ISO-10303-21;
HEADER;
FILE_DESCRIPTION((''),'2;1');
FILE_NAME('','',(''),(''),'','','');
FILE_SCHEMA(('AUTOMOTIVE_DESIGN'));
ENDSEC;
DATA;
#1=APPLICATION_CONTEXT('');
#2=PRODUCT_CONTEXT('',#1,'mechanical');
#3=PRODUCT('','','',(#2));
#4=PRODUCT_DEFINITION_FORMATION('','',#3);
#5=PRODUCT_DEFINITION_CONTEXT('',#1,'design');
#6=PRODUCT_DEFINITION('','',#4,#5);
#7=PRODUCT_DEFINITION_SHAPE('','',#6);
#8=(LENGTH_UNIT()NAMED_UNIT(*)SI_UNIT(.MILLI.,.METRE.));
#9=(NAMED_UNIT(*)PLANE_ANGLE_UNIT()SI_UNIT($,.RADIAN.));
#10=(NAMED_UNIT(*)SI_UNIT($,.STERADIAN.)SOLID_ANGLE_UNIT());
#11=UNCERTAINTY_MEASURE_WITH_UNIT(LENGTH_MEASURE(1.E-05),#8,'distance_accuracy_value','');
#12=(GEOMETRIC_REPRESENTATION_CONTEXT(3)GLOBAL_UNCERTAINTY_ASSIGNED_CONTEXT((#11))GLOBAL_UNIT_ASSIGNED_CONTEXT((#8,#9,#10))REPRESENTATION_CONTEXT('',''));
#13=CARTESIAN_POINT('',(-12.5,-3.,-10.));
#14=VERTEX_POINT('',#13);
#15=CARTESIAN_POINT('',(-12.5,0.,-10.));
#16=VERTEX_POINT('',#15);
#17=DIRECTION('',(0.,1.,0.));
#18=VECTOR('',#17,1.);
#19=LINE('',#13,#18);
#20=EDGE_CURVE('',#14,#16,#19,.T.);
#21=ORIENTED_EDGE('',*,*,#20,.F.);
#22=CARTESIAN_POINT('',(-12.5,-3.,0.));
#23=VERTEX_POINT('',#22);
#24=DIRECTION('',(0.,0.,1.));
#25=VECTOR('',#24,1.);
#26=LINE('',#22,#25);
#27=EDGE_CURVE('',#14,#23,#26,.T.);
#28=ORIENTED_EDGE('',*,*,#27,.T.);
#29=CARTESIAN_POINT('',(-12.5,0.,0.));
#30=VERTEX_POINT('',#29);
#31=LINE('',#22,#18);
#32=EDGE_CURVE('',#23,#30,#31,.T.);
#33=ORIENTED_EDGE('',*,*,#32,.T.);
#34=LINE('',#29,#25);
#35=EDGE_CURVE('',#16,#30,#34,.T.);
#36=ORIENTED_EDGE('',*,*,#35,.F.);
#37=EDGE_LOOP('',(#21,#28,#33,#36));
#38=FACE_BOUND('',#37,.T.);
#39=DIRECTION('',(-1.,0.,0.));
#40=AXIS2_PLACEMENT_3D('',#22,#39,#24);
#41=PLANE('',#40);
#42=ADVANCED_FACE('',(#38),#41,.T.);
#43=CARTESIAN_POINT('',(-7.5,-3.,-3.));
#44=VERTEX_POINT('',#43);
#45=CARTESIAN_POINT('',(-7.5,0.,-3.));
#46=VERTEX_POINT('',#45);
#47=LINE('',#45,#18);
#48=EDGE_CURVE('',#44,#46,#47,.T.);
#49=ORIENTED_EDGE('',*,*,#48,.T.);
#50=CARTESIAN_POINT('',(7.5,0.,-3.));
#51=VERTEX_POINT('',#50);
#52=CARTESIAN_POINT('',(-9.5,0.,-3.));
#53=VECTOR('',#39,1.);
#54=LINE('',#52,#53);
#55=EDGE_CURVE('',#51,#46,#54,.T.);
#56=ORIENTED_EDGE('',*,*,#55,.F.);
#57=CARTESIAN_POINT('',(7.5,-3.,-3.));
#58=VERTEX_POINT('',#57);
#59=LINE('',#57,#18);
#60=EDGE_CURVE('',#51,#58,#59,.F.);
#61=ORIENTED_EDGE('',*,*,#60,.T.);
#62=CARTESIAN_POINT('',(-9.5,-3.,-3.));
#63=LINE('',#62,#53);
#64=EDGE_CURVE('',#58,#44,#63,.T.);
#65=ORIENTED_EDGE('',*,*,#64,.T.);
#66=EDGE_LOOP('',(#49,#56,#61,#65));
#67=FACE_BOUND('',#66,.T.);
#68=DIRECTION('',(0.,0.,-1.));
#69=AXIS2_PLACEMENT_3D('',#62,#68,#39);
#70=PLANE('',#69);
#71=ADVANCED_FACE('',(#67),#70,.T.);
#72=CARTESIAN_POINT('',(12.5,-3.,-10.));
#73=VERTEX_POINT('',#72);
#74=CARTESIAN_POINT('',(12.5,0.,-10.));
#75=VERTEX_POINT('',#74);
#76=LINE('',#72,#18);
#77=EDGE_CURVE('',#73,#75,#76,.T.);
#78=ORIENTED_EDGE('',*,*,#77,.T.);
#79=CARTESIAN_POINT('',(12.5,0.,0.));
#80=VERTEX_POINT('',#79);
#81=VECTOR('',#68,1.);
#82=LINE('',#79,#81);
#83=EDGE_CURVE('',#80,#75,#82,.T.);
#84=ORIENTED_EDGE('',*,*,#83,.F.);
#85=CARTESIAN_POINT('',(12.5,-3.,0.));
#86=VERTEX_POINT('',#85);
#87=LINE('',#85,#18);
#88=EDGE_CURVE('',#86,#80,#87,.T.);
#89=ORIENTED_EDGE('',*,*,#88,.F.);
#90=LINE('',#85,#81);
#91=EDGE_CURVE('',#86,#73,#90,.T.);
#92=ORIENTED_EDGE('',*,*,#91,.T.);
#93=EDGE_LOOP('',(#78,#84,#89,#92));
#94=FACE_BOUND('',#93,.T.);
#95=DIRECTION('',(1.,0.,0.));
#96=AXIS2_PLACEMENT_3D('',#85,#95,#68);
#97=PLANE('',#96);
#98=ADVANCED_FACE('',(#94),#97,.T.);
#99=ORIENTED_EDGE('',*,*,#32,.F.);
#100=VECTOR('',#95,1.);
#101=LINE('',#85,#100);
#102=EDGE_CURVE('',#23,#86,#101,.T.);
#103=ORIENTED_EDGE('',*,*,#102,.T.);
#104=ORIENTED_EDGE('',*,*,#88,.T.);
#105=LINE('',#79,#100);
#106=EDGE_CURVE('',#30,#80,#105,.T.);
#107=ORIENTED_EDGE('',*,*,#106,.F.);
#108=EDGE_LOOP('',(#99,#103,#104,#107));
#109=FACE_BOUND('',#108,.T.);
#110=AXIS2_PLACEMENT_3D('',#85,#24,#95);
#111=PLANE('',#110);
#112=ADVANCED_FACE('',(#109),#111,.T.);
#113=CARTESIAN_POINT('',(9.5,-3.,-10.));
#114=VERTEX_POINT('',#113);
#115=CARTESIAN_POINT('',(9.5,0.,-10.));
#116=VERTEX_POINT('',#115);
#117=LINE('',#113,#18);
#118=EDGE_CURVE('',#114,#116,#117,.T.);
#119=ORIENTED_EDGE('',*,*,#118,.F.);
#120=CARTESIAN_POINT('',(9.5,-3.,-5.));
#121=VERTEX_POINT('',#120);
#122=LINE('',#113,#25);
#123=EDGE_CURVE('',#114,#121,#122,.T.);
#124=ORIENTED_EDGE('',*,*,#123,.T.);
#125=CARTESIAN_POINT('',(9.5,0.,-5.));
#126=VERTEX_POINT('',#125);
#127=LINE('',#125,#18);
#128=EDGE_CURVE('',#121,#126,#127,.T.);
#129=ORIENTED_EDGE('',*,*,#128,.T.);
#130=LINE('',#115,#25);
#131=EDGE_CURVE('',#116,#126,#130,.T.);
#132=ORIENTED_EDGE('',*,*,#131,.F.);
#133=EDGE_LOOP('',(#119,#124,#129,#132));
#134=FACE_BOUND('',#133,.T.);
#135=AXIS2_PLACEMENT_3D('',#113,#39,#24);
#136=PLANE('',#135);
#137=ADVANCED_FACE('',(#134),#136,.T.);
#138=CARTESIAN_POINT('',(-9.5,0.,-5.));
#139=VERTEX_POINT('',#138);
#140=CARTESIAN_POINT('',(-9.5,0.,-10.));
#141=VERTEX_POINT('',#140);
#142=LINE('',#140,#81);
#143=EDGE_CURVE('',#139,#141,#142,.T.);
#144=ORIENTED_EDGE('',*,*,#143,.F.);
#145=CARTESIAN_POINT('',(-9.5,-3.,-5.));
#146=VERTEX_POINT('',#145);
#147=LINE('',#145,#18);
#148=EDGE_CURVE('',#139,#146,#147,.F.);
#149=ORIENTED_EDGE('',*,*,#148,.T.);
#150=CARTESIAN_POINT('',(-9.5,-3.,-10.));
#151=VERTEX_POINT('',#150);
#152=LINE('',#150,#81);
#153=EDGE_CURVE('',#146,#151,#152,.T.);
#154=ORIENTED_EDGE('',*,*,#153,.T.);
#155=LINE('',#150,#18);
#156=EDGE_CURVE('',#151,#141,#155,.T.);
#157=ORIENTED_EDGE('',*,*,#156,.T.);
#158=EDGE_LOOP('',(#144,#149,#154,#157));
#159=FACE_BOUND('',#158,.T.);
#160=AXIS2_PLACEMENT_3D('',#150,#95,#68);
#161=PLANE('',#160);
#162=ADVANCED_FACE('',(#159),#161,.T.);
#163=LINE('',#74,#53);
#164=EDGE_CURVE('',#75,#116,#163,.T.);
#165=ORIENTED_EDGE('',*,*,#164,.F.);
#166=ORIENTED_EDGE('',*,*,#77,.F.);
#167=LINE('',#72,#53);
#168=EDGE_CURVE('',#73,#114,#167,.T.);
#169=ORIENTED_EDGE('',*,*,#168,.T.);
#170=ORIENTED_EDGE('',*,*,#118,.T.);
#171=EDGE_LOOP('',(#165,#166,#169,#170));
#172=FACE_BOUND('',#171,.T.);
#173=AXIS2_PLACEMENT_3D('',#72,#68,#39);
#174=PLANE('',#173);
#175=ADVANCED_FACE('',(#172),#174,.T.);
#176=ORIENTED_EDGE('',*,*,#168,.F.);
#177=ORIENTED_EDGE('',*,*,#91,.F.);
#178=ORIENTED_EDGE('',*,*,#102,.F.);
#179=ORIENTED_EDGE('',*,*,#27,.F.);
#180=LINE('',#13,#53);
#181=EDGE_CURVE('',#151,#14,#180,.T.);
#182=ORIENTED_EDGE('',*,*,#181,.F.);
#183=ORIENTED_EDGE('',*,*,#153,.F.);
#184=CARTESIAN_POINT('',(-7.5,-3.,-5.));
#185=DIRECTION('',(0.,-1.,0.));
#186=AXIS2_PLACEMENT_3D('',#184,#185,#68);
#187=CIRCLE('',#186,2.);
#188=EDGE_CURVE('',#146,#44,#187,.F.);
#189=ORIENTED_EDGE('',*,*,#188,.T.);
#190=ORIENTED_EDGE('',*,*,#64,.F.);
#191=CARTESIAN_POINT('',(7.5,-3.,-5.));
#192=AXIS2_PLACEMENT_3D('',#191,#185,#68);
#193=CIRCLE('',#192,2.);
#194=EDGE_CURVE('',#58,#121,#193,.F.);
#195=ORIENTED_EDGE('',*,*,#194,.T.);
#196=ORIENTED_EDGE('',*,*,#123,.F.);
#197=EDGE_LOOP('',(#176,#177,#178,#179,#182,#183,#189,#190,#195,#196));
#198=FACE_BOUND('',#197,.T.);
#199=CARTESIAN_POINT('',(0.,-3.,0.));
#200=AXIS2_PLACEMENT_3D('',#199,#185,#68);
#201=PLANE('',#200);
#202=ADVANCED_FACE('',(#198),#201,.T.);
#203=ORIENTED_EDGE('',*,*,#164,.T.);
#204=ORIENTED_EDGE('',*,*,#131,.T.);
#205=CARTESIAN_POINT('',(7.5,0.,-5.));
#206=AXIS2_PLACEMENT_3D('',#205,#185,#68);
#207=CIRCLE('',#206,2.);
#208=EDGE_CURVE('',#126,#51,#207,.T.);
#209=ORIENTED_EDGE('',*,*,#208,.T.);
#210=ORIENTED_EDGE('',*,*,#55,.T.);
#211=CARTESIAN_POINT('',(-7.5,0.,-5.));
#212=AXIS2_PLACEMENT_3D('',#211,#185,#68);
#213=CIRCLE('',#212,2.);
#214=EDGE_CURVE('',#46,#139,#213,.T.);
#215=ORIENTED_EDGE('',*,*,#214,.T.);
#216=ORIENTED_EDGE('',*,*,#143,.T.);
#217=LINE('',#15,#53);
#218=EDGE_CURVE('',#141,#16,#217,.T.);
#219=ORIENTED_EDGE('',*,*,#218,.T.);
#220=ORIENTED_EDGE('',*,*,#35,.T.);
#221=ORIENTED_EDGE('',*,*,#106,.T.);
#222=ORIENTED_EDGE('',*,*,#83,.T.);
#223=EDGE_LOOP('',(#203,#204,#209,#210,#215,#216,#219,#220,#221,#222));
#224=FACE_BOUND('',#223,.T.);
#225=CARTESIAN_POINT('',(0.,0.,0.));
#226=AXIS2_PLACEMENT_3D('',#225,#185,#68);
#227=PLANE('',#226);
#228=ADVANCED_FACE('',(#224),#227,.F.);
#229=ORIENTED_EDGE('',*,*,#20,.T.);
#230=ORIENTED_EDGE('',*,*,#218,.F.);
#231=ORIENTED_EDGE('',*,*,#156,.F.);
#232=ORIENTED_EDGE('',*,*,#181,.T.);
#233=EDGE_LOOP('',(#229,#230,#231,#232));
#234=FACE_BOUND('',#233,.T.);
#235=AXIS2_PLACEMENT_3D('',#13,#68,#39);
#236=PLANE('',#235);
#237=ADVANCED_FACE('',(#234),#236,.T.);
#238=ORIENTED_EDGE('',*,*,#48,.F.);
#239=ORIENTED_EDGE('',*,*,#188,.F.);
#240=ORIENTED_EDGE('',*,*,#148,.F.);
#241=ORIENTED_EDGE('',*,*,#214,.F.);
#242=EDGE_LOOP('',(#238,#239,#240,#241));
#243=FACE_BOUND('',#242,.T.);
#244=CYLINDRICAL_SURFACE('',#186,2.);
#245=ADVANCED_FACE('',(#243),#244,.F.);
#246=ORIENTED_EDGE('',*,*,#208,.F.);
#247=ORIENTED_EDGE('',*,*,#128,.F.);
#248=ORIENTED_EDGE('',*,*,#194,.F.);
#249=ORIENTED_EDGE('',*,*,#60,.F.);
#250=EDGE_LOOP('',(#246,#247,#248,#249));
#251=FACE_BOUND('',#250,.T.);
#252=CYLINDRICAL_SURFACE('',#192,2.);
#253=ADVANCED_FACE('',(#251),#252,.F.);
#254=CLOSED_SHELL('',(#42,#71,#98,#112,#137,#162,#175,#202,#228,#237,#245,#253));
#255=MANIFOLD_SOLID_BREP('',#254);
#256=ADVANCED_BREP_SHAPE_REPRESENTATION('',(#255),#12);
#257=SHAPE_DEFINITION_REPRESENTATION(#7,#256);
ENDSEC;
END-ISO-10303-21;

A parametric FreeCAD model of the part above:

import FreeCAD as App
import Part
import Sketcher
Q = App.Units.Quantity


def edges_at(feature, points):
    """Names of the edges that pass closest to the given points."""
    edges = feature.Shape.Edges
    near = lambda p: min(range(len(edges)), key=lambda i: edges[i].distToShape(Part.Vertex(*p))[0])
    return sorted({f"Edge{near(p) + 1}" for p in points})


def add_polygon(sketch, points):
    """Adds a closed chain of lines whose ends are joined by coincident constraints."""
    first, n = sketch.GeometryCount, len(points)
    for a, b in zip(points, points[1:] + points[:1]):
        sketch.addGeometry(Part.LineSegment(App.Vector(*a, 0), App.Vector(*b, 0)), False)
    for i in range(n):
        sketch.addConstraint(Sketcher.Constraint("Coincident", first + i, 2, first + (i + 1) % n, 1))

doc = App.newDocument("Part")
body = doc.addObject("PartDesign::Body", "Body")

sketch1 = body.newObject("Sketcher::SketchObject", "Sketch")
sketch1.AttachmentSupport = (doc.getObject("XZ_Plane"), [""])
sketch1.MapMode = "FlatFace"
add_polygon(sketch1, [(-12.5, 0), (12.5, 0), (12.5, -10), (9.5, -10), (9.5, -3), (-9.5, -3), (-9.5, -10), (-12.5, -10)])
sketch1.addConstraint([
    Sketcher.Constraint("Horizontal", 0),
    Sketcher.Constraint("Vertical", 1),
    Sketcher.Constraint("Horizontal", 2),
    Sketcher.Constraint("Vertical", 3),
    Sketcher.Constraint("Horizontal", 4),
    Sketcher.Constraint("Vertical", 5),
    Sketcher.Constraint("Horizontal", 6),
    Sketcher.Constraint("Vertical", 7),
    Sketcher.Constraint("Symmetric", 0, 2, 7, 2, -1, 1),
    Sketcher.Constraint("Symmetric", 2, 2, 5, 2, -2),
    Sketcher.Constraint("DistanceX", 0, 1, 0, 2, Q("25 mm")),
    Sketcher.Constraint("DistanceX", 2, 2, 2, 1, Q("3 mm")),
    Sketcher.Constraint("DistanceY", 1, 2, 1, 1, Q("10 mm")),
    Sketcher.Constraint("DistanceY", 3, 1, 3, 2, Q("7 mm")),
])
pad1 = body.newObject("PartDesign::Pad", "Pad")
pad1.Profile = sketch1
pad1.Length = 3
doc.recompute()

fillet = body.newObject("PartDesign::Fillet", "Fillet")
fillet.Base = (pad1, edges_at(pad1, [(-9.5, -1.5, -3)]))
fillet.Radius = 2
doc.recompute()

fillet2 = body.newObject("PartDesign::Fillet", "Fillet001")
fillet2.Base = (fillet, edges_at(fillet, [(9.5, -1.5, -3)]))
fillet2.Radius = 2

doc.recompute()
